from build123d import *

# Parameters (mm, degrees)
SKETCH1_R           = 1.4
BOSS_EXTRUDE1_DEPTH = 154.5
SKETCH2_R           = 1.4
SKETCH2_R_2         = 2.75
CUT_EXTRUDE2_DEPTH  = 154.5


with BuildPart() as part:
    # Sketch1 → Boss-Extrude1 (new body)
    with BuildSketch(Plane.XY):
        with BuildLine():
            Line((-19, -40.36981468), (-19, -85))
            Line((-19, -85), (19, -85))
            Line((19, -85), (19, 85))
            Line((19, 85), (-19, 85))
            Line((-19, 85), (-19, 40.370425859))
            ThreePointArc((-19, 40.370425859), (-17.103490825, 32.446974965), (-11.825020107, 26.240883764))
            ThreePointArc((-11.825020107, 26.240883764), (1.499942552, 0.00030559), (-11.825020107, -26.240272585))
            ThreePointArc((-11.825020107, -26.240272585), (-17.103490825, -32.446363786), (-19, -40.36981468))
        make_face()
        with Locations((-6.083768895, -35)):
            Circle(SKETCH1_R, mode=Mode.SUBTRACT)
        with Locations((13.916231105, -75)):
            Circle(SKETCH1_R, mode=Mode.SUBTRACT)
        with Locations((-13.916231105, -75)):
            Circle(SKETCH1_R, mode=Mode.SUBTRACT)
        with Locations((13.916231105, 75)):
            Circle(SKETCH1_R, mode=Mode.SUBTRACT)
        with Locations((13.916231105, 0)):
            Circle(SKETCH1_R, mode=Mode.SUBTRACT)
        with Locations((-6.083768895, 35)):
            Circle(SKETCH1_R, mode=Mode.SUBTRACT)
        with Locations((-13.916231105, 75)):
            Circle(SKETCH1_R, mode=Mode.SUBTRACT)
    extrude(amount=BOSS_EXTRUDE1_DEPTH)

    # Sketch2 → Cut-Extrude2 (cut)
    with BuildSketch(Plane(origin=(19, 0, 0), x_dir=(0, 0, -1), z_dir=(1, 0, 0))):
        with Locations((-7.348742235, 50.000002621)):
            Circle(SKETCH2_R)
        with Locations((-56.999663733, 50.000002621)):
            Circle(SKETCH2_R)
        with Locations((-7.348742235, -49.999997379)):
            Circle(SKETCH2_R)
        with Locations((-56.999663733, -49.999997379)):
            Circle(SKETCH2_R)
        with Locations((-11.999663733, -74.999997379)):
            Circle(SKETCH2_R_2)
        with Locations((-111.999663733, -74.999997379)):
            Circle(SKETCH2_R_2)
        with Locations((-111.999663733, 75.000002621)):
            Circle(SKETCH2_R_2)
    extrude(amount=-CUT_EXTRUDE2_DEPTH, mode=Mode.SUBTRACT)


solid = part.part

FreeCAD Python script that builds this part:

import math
import FreeCAD as App
import Part
import Sketcher
from FreeCAD import Vector

doc = App.newDocument("Part")
body = doc.addObject("PartDesign::Body", "Body")

# Sketch on XY plane
sketch1 = body.newObject("Sketcher::SketchObject", "Sketch")
sketch1.AttachmentSupport = (doc.getObject("XY_Plane"), [""])
sketch1.MapMode = "FlatFace"
sketch1.addGeometry([
    Part.LineSegment(Vector(-19, -40.4, 0), Vector(-19, -85, 0)),  # 0
    Part.LineSegment(Vector(-19, -85, 0), Vector(19, -85, 0)),  # 1
    Part.LineSegment(Vector(19, -85, 0), Vector(19, 85, 0)),  # 2
    Part.LineSegment(Vector(19, 85, 0), Vector(-19, 85, 0)),  # 3
    Part.LineSegment(Vector(-19, 85, 0), Vector(-19, 40.4, 0)),  # 4
    Part.ArcOfCircle(Part.Circle(Vector(-1.5, 40.4, 0), Vector(0, 0, 1), 17.5), math.radians(-180), math.radians(-126)),  # 5
    Part.ArcOfCircle(Part.Circle(Vector(-31, 0, 0), Vector(0, 0, 1), 32.5), math.radians(-54), math.radians(54)),  # 6
    Part.ArcOfCircle(Part.Circle(Vector(-1.5, -40.4, 0), Vector(0, 0, 1), 17.5), math.radians(126), math.radians(180)),  # 7
    Part.Circle(Vector(-13.9, -75, 0), Vector(0, 0, 1), 1.4),  # 8
    Part.Circle(Vector(-6.1, -35, 0), Vector(0, 0, 1), 1.4),  # 9
    Part.Circle(Vector(13.9, -75, 0), Vector(0, 0, 1), 1.4),  # 10
    Part.Circle(Vector(13.9, 0, 0), Vector(0, 0, 1), 1.4),  # 11
    Part.Circle(Vector(-6.1, 35, 0), Vector(0, 0, 1), 1.4),  # 12
    Part.Circle(Vector(-13.9, 75, 0), Vector(0, 0, 1), 1.4),  # 13
    Part.Circle(Vector(13.9, 75, 0), Vector(0, 0, 1), 1.4),  # 14
], False)
sketch1.addConstraint([
    Sketcher.Constraint("Coincident", 0, 2, 1, 1),
    Sketcher.Constraint("Coincident", 1, 2, 2, 1),
    Sketcher.Constraint("Coincident", 2, 2, 3, 1),
    Sketcher.Constraint("Coincident", 3, 2, 4, 1),
    Sketcher.Constraint("Tangent", 4, 2, 5, 1),
    Sketcher.Constraint("Tangent", 5, 2, 6, 2),
    Sketcher.Constraint("Tangent", 6, 1, 7, 1),
    Sketcher.Constraint("Tangent", 7, 2, 0, 1),
    Sketcher.Constraint("Vertical", 0),
    Sketcher.Constraint("Horizontal", 1),
    Sketcher.Constraint("Vertical", 2),
    Sketcher.Constraint("Horizontal", 3),
    Sketcher.Constraint("Vertical", 4),
    Sketcher.Constraint("Equal", 5, 7),
    Sketcher.Constraint("Equal", 8, 9),
    Sketcher.Constraint("Equal", 9, 10),
    Sketcher.Constraint("Equal", 10, 11),
    Sketcher.Constraint("Equal", 11, 12),
    Sketcher.Constraint("Equal", 12, 13),
    Sketcher.Constraint("Equal", 13, 14),
    Sketcher.Constraint("Symmetric", 10, 3, 13, 3, -1, 1),
    Sketcher.Constraint("Symmetric", 8, 3, 14, 3, -1, 1),
    Sketcher.Constraint("Symmetric", 0, 2, 2, 2, -1, 1),
    Sketcher.Constraint("Symmetric", 8, 3, 10, 3, -2),
    Sketcher.Constraint("Symmetric", 9, 3, 12, 3, -1),
    Sketcher.Constraint("PointOnObject", 11, 3, -1),
    Sketcher.Constraint("Vertical", 5, 3, 7, 3),
    Sketcher.Constraint("Vertical", 10, 3, 11, 3),
    Sketcher.Constraint("Diameter", 8, 2.8),
    Sketcher.Constraint("Radius", 5, 17.5),
    Sketcher.Constraint("Radius", 6, 32.5),
    Sketcher.Constraint("DistanceX", 1, 1, 1, 2, 38.0),
    Sketcher.Constraint("DistanceY", 2, 1, 2, 2, 170.0),
    Sketcher.Constraint("DistanceY", 8, 3, -1, 1, 75.0),
    Sketcher.Constraint("DistanceY", 9, 3, -1, 1, 35.0),
    Sketcher.Constraint("DistanceX", 9, 3, 10, 3, 20.0),
    Sketcher.Constraint("DistanceY", 0, 2, 0, 1, 44.630185),
    Sketcher.Constraint("DistanceY", 4, 2, 4, 1, 44.629574),
    Sketcher.Constraint("DistanceX", 8, 3, -1, 1, 13.916231),
])
pad1 = body.newObject("PartDesign::Pad", "Pad")
pad1.Profile = sketch1
pad1.Length = 154.5

# Sketch on YZ plane
sketch2 = body.newObject("Sketcher::SketchObject", "Sketch001")
sketch2.AttachmentSupport = (doc.getObject("YZ_Plane"), [""])
sketch2.MapMode = "FlatFace"
sketch2.AttachmentOffset = App.Placement(Vector(0, 0, 19), App.Rotation())
sketch2.addGeometry([
    Part.Circle(Vector(50, 7.3, 0), Vector(0, 0, 1), 1.4),  # 0
    Part.Circle(Vector(50, 57, 0), Vector(0, 0, 1), 1.4),  # 1
    Part.Circle(Vector(-50, 7.3, 0), Vector(0, 0, 1), 1.4),  # 2
    Part.Circle(Vector(-50, 57, 0), Vector(0, 0, 1), 1.4),  # 3
    Part.Circle(Vector(-75, 12, 0), Vector(0, 0, 1), 2.8),  # 4
    Part.Circle(Vector(-75, 112, 0), Vector(0, 0, 1), 2.8),  # 5
    Part.Circle(Vector(75, 112, 0), Vector(0, 0, 1), 2.8),  # 6
], False)
sketch2.addConstraint([
    Sketcher.Constraint("Equal", 0, 1),
    Sketcher.Constraint("Equal", 1, 2),
    Sketcher.Constraint("Equal", 2, 3),
    Sketcher.Constraint("Equal", 4, 5),
    Sketcher.Constraint("Equal", 5, 6),
    Sketcher.Constraint("Symmetric", 0, 3, 2, 3, -2),
    Sketcher.Constraint("Symmetric", 1, 3, 3, 3, -2),
    Sketcher.Constraint("Symmetric", 5, 3, 6, 3, -2),
    Sketcher.Constraint("Vertical", 0, 3, 1, 3),
    Sketcher.Constraint("Vertical", 4, 3, 5, 3),
    Sketcher.Constraint("Diameter", 0, 2.8),
    Sketcher.Constraint("Diameter", 4, 5.5),
    Sketcher.Constraint("DistanceX", 2, 3, 0, 3, 100.0),
    Sketcher.Constraint("DistanceX", 4, 3, 2, 3, 25.0),
    Sketcher.Constraint("DistanceY", 4, 3, 3, 3, 45.0),
    Sketcher.Constraint("DistanceY", 3, 3, 5, 3, 55.0),
    Sketcher.Constraint("DistanceY", 0, 3, 1, 3, 49.650921),
    Sketcher.Constraint("DistanceY", -1, 1, 0, 3, 7.348742),
])
pocket1 = body.newObject("PartDesign::Pocket", "Pocket")
pocket1.Profile = sketch2
pocket1.Length = 154.5

doc.recompute()
